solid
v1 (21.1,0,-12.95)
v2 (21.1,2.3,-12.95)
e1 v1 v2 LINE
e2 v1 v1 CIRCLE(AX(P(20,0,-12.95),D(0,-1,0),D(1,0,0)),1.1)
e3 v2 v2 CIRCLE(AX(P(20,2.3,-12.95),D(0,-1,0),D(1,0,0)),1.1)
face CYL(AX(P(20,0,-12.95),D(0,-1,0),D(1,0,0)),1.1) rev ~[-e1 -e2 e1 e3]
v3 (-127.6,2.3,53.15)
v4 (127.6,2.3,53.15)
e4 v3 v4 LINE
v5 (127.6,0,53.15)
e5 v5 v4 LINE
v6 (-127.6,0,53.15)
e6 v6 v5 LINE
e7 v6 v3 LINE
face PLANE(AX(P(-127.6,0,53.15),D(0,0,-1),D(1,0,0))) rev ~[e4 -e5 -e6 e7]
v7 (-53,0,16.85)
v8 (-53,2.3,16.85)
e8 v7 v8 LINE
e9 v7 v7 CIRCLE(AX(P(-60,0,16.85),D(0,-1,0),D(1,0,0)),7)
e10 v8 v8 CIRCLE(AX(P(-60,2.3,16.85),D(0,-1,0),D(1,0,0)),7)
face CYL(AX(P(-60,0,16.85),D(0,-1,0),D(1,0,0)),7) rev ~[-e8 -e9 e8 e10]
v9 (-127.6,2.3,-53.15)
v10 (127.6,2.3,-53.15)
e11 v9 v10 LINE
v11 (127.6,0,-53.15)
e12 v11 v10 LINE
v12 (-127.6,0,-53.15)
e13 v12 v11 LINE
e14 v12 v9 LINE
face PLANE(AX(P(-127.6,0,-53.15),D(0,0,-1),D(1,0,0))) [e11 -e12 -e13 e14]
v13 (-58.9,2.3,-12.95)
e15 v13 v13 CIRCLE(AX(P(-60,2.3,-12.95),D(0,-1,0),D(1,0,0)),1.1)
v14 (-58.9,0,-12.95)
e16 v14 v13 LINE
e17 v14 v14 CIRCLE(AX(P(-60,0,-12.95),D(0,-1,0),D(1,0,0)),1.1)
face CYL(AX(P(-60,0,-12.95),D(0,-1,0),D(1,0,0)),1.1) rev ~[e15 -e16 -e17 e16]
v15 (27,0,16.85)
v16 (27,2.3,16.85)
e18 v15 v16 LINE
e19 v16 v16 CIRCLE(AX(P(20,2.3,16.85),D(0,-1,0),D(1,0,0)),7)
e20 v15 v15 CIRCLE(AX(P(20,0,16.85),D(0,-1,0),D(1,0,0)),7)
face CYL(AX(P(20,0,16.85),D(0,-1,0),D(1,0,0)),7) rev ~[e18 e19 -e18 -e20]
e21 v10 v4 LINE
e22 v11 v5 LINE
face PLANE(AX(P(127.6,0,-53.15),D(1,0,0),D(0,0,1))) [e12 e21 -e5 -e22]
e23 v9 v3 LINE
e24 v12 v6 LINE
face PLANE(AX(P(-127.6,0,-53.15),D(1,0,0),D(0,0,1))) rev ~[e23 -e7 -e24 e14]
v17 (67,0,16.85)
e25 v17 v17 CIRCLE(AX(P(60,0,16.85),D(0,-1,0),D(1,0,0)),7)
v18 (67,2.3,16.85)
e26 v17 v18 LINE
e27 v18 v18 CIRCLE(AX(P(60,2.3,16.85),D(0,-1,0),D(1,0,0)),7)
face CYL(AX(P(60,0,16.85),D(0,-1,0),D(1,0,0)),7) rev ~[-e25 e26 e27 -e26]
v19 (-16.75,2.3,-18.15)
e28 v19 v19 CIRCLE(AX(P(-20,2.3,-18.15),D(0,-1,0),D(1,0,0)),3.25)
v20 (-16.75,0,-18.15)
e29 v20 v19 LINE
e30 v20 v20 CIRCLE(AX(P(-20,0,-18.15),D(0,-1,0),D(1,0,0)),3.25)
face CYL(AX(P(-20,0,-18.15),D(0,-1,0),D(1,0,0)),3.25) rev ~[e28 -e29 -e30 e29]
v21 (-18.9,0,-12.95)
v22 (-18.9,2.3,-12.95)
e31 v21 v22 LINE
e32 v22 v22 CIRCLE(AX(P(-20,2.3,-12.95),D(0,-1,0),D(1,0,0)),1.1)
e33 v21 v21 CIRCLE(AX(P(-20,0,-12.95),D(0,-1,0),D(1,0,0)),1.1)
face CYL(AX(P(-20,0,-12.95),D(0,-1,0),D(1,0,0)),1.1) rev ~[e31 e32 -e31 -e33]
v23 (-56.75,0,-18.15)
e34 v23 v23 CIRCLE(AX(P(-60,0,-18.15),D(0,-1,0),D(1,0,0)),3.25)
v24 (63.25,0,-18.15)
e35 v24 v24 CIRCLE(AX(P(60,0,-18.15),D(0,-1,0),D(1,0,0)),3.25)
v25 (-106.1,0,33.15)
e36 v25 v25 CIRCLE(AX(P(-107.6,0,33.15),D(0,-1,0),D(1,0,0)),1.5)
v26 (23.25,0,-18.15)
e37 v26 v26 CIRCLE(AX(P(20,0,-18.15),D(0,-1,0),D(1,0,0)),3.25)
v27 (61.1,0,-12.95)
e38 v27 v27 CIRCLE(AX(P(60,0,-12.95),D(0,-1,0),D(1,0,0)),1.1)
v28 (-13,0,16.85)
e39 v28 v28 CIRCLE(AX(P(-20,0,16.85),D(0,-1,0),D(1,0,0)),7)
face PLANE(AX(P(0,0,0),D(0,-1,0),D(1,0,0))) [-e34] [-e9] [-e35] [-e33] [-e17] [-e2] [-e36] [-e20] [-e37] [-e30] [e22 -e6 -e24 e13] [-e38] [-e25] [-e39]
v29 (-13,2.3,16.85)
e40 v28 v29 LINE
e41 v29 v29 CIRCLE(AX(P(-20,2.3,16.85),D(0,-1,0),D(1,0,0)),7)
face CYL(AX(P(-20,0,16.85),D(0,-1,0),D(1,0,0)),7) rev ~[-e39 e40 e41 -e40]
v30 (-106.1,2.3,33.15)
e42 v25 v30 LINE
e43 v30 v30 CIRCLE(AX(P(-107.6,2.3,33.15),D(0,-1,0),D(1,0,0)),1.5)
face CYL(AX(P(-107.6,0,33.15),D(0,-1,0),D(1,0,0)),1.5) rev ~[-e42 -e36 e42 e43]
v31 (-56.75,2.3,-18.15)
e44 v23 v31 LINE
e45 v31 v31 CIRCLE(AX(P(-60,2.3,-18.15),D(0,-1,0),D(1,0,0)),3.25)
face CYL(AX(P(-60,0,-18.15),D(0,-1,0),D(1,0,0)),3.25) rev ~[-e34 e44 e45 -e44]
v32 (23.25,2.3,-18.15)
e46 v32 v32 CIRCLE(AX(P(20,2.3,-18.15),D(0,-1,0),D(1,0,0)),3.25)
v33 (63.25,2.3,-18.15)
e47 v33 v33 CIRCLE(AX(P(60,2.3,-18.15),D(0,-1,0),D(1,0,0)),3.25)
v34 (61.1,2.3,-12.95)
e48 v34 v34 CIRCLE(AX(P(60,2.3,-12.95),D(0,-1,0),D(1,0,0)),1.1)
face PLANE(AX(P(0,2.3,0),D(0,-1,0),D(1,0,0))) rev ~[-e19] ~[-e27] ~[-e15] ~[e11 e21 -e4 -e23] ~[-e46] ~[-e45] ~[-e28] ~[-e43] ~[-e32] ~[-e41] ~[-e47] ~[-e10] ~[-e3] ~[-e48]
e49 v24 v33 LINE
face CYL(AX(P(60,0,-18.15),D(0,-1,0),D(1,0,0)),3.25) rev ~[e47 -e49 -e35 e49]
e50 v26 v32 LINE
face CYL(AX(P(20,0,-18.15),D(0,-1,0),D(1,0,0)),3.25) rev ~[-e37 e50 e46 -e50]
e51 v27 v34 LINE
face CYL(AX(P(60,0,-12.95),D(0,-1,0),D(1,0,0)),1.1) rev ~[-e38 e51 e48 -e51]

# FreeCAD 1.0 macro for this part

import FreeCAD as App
import Part
import Sketcher
Q = App.Units.Quantity


def add_polygon(sketch, points):
    """Adds a closed chain of lines whose ends are joined by coincident constraints."""
    first, n = sketch.GeometryCount, len(points)
    for a, b in zip(points, points[1:] + points[:1]):
        sketch.addGeometry(Part.LineSegment(App.Vector(*a, 0), App.Vector(*b, 0)), False)
    for i in range(n):
        sketch.addConstraint(Sketcher.Constraint("Coincident", first + i, 2, first + (i + 1) % n, 1))

doc = App.newDocument("Part")
body = doc.addObject("PartDesign::Body", "Body")

sketch1 = body.newObject("Sketcher::SketchObject", "Sketch")
sketch1.AttachmentSupport = (doc.getObject("XZ_Plane"), [""])
sketch1.MapMode = "FlatFace"
add_polygon(sketch1, [(-127.6, 53.1), (-127.6, -53.1), (127.6, -53.1), (127.6, 53.1)])
sketch1.addGeometry(Part.Circle(App.Vector(-60, -18.1, 0), App.Vector(0, 0, 1), 3.2), False)
sketch1.addGeometry(Part.Circle(App.Vector(-60, -12.9, 0), App.Vector(0, 0, 1), 1.1), False)
sketch1.addGeometry(Part.Circle(App.Vector(-20, -18.1, 0), App.Vector(0, 0, 1), 3.2), False)
sketch1.addGeometry(Part.Circle(App.Vector(20, -18.1, 0), App.Vector(0, 0, 1), 3.2), False)
sketch1.addGeometry(Part.Circle(App.Vector(-20, -12.9, 0), App.Vector(0, 0, 1), 1.1), False)
sketch1.addGeometry(Part.Circle(App.Vector(20, -12.9, 0), App.Vector(0, 0, 1), 1.1), False)
sketch1.addGeometry(Part.Circle(App.Vector(60, -18.1, 0), App.Vector(0, 0, 1), 3.2), False)
sketch1.addGeometry(Part.Circle(App.Vector(60, -12.9, 0), App.Vector(0, 0, 1), 1.1), False)
sketch1.addGeometry(Part.Circle(App.Vector(-60, 16.9, 0), App.Vector(0, 0, 1), 7), False)
sketch1.addGeometry(Part.Circle(App.Vector(-107.6, 33.1, 0), App.Vector(0, 0, 1), 1.5), False)
sketch1.addGeometry(Part.Circle(App.Vector(-20, 16.9, 0), App.Vector(0, 0, 1), 7), False)
sketch1.addGeometry(Part.Circle(App.Vector(20, 16.9, 0), App.Vector(0, 0, 1), 7), False)
sketch1.addGeometry(Part.Circle(App.Vector(60, 16.9, 0), App.Vector(0, 0, 1), 7), False)
sketch1.addConstraint([
    Sketcher.Constraint("Vertical", 0),
    Sketcher.Constraint("Horizontal", 1),
    Sketcher.Constraint("Vertical", 2),
    Sketcher.Constraint("Horizontal", 3),
    Sketcher.Constraint("Equal", 4, 6),
    Sketcher.Constraint("Equal", 6, 7),
    Sketcher.Constraint("Equal", 5, 8),
    Sketcher.Constraint("Equal", 8, 9),
    Sketcher.Constraint("Equal", 7, 10),
    Sketcher.Constraint("Equal", 9, 11),
    Sketcher.Constraint("Equal", 12, 14),
    Sketcher.Constraint("Equal", 14, 15),
    Sketcher.Constraint("Equal", 15, 16),
    Sketcher.Constraint("Symmetric", 0, 2, 2, 2, -1, 1),
    Sketcher.Constraint("Symmetric", 6, 3, 7, 3, -2),
    Sketcher.Constraint("Symmetric", 8, 3, 9, 3, -2),
    Sketcher.Constraint("Symmetric", 4, 3, 10, 3, -2),
    Sketcher.Constraint("Symmetric", 5, 3, 11, 3, -2),
    Sketcher.Constraint("Symmetric", 14, 3, 15, 3, -2),
    Sketcher.Constraint("Symmetric", 12, 3, 16, 3, -2),
    Sketcher.Constraint("Horizontal", 4, 3, 6, 3),
    Sketcher.Constraint("Horizontal", 5, 3, 8, 3),
    Sketcher.Constraint("Horizontal", 12, 3, 14, 3),
    Sketcher.Constraint("Vertical", 4, 3, 5, 3),
    Sketcher.Constraint("Vertical", 6, 3, 8, 3),
    Sketcher.Constraint("Vertical", 5, 3, 12, 3),
    Sketcher.Constraint("Vertical", 8, 3, 14, 3),
    Sketcher.Constraint("Diameter", 12, Q("14 mm")),
    Sketcher.Constraint("Diameter", 13, Q("3 mm")),
    Sketcher.Constraint("Diameter", 4, Q("6.5 mm")),
    Sketcher.Constraint("Diameter", 5, Q("2.2 mm")),
    Sketcher.Constraint("DistanceX", 1, 1, 1, 2, Q("255.2 mm")),
    Sketcher.Constraint("DistanceY", 0, 2, 0, 1, Q("106.3 mm")),
    Sketcher.Constraint("DistanceX", 4, 3, -1, 1, Q("60 mm")),
    Sketcher.Constraint("DistanceX", 6, 3, -1, 1, Q("20 mm")),
    Sketcher.Constraint("DistanceY", 4, 3, 12, 3, Q("35 mm")),
    Sketcher.Constraint("DistanceY", 0, 2, 4, 3, Q("35 mm")),
    Sketcher.Constraint("DistanceX", 0, 2, 13, 3, Q("20 mm")),
    Sketcher.Constraint("DistanceY", 13, 3, 3, 2, Q("20 mm")),
    Sketcher.Constraint("DistanceY", 4, 3, 5, 3, Q("5.2 mm")),
])
pad1 = body.newObject("PartDesign::Pad", "Pad")
pad1.Profile = sketch1
pad1.Length = 2.3
pad1.Reversed = True

doc.recompute()
